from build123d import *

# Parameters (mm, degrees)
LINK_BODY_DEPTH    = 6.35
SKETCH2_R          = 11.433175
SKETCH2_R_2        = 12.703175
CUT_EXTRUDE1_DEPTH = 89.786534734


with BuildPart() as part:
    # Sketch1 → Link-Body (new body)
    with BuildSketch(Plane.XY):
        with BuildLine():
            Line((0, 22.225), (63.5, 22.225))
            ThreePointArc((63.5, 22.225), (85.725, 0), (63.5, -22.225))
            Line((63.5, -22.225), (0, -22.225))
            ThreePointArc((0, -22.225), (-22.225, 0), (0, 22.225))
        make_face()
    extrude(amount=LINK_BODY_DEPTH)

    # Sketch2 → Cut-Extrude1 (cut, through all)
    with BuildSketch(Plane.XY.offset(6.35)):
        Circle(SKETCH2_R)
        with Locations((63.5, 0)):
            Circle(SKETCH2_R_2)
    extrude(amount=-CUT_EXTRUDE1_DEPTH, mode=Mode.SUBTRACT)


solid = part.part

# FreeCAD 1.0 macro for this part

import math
import FreeCAD as App
import Part
import Sketcher
from FreeCAD import Vector
Q = App.Units.Quantity

doc = App.newDocument("Part")
body = doc.addObject("PartDesign::Body", "Body")

# Sketch on XY plane
sketch1 = body.newObject("Sketcher::SketchObject", "Sketch")
sketch1.AttachmentSupport = (doc.getObject("XY_Plane"), [""])
sketch1.MapMode = "FlatFace"
sketch1.addGeometry(Part.LineSegment(Vector(64, 22, 0), Vector(0, 22, 0)), False)
sketch1.addGeometry(Part.ArcOfCircle(Part.Circle(Vector(0, 0, 0), Vector(0, 0, 1), 22), math.radians(90), math.radians(270)), False)
sketch1.addGeometry(Part.LineSegment(Vector(0, -22, 0), Vector(64, -22, 0)), False)
sketch1.addGeometry(Part.ArcOfCircle(Part.Circle(Vector(64, 0, 0), Vector(0, 0, 1), 22), math.radians(-90), math.radians(90)), False)
sketch1.addConstraint(Sketcher.Constraint("Tangent", 0, 2, 1, 1))
sketch1.addConstraint(Sketcher.Constraint("Tangent", 1, 2, 2, 1))
sketch1.addConstraint(Sketcher.Constraint("Tangent", 2, 2, 3, 1))
sketch1.addConstraint(Sketcher.Constraint("Tangent", 3, 2, 0, 1))
sketch1.addConstraint(Sketcher.Constraint("Horizontal", 0))
sketch1.addConstraint(Sketcher.Constraint("Horizontal", 2))
sketch1.addConstraint(Sketcher.Constraint("Coincident", 1, 3, -1, 1))
sketch1.addConstraint(Sketcher.Constraint("DistanceX", 0, 2, 0, 1, Q("2.5 in")))
sketch1.addConstraint(Sketcher.Constraint("Radius", 1, Q("0.875 in")))
pad1 = body.newObject("PartDesign::Pad", "Pad")
pad1.Profile = sketch1
pad1.Length = Q("0.25 in")

# Sketch on XY plane
sketch2 = body.newObject("Sketcher::SketchObject", "Sketch001")
sketch2.AttachmentSupport = (doc.getObject("XY_Plane"), [""])
sketch2.MapMode = "FlatFace"
sketch2.AttachmentOffset = App.Placement(Vector(0, 0, 0.25 * 25.4), App.Rotation())
sketch2.addGeometry(Part.Circle(Vector(0, 0, 0), Vector(0, 0, 1), 11), False)
sketch2.addGeometry(Part.Circle(Vector(64, 0, 0), Vector(0, 0, 1), 13), False)
sketch2.addConstraint(Sketcher.Constraint("Coincident", 0, 3, -1, 1))
sketch2.addConstraint(Sketcher.Constraint("PointOnObject", 1, 3, -1))
sketch2.addConstraint(Sketcher.Constraint("DistanceX", -1, 1, 1, 3, Q("2.5 in")))
sketch2.addConstraint(Sketcher.Constraint("Diameter", 0, Q("22.86635 mm")))
sketch2.addConstraint(Sketcher.Constraint("Diameter", 1, Q("25.40635 mm")))
pocket1 = body.newObject("PartDesign::Pocket", "Pocket")
pocket1.Profile = sketch2
pocket1.Type = "ThroughAll"

doc.recompute()
